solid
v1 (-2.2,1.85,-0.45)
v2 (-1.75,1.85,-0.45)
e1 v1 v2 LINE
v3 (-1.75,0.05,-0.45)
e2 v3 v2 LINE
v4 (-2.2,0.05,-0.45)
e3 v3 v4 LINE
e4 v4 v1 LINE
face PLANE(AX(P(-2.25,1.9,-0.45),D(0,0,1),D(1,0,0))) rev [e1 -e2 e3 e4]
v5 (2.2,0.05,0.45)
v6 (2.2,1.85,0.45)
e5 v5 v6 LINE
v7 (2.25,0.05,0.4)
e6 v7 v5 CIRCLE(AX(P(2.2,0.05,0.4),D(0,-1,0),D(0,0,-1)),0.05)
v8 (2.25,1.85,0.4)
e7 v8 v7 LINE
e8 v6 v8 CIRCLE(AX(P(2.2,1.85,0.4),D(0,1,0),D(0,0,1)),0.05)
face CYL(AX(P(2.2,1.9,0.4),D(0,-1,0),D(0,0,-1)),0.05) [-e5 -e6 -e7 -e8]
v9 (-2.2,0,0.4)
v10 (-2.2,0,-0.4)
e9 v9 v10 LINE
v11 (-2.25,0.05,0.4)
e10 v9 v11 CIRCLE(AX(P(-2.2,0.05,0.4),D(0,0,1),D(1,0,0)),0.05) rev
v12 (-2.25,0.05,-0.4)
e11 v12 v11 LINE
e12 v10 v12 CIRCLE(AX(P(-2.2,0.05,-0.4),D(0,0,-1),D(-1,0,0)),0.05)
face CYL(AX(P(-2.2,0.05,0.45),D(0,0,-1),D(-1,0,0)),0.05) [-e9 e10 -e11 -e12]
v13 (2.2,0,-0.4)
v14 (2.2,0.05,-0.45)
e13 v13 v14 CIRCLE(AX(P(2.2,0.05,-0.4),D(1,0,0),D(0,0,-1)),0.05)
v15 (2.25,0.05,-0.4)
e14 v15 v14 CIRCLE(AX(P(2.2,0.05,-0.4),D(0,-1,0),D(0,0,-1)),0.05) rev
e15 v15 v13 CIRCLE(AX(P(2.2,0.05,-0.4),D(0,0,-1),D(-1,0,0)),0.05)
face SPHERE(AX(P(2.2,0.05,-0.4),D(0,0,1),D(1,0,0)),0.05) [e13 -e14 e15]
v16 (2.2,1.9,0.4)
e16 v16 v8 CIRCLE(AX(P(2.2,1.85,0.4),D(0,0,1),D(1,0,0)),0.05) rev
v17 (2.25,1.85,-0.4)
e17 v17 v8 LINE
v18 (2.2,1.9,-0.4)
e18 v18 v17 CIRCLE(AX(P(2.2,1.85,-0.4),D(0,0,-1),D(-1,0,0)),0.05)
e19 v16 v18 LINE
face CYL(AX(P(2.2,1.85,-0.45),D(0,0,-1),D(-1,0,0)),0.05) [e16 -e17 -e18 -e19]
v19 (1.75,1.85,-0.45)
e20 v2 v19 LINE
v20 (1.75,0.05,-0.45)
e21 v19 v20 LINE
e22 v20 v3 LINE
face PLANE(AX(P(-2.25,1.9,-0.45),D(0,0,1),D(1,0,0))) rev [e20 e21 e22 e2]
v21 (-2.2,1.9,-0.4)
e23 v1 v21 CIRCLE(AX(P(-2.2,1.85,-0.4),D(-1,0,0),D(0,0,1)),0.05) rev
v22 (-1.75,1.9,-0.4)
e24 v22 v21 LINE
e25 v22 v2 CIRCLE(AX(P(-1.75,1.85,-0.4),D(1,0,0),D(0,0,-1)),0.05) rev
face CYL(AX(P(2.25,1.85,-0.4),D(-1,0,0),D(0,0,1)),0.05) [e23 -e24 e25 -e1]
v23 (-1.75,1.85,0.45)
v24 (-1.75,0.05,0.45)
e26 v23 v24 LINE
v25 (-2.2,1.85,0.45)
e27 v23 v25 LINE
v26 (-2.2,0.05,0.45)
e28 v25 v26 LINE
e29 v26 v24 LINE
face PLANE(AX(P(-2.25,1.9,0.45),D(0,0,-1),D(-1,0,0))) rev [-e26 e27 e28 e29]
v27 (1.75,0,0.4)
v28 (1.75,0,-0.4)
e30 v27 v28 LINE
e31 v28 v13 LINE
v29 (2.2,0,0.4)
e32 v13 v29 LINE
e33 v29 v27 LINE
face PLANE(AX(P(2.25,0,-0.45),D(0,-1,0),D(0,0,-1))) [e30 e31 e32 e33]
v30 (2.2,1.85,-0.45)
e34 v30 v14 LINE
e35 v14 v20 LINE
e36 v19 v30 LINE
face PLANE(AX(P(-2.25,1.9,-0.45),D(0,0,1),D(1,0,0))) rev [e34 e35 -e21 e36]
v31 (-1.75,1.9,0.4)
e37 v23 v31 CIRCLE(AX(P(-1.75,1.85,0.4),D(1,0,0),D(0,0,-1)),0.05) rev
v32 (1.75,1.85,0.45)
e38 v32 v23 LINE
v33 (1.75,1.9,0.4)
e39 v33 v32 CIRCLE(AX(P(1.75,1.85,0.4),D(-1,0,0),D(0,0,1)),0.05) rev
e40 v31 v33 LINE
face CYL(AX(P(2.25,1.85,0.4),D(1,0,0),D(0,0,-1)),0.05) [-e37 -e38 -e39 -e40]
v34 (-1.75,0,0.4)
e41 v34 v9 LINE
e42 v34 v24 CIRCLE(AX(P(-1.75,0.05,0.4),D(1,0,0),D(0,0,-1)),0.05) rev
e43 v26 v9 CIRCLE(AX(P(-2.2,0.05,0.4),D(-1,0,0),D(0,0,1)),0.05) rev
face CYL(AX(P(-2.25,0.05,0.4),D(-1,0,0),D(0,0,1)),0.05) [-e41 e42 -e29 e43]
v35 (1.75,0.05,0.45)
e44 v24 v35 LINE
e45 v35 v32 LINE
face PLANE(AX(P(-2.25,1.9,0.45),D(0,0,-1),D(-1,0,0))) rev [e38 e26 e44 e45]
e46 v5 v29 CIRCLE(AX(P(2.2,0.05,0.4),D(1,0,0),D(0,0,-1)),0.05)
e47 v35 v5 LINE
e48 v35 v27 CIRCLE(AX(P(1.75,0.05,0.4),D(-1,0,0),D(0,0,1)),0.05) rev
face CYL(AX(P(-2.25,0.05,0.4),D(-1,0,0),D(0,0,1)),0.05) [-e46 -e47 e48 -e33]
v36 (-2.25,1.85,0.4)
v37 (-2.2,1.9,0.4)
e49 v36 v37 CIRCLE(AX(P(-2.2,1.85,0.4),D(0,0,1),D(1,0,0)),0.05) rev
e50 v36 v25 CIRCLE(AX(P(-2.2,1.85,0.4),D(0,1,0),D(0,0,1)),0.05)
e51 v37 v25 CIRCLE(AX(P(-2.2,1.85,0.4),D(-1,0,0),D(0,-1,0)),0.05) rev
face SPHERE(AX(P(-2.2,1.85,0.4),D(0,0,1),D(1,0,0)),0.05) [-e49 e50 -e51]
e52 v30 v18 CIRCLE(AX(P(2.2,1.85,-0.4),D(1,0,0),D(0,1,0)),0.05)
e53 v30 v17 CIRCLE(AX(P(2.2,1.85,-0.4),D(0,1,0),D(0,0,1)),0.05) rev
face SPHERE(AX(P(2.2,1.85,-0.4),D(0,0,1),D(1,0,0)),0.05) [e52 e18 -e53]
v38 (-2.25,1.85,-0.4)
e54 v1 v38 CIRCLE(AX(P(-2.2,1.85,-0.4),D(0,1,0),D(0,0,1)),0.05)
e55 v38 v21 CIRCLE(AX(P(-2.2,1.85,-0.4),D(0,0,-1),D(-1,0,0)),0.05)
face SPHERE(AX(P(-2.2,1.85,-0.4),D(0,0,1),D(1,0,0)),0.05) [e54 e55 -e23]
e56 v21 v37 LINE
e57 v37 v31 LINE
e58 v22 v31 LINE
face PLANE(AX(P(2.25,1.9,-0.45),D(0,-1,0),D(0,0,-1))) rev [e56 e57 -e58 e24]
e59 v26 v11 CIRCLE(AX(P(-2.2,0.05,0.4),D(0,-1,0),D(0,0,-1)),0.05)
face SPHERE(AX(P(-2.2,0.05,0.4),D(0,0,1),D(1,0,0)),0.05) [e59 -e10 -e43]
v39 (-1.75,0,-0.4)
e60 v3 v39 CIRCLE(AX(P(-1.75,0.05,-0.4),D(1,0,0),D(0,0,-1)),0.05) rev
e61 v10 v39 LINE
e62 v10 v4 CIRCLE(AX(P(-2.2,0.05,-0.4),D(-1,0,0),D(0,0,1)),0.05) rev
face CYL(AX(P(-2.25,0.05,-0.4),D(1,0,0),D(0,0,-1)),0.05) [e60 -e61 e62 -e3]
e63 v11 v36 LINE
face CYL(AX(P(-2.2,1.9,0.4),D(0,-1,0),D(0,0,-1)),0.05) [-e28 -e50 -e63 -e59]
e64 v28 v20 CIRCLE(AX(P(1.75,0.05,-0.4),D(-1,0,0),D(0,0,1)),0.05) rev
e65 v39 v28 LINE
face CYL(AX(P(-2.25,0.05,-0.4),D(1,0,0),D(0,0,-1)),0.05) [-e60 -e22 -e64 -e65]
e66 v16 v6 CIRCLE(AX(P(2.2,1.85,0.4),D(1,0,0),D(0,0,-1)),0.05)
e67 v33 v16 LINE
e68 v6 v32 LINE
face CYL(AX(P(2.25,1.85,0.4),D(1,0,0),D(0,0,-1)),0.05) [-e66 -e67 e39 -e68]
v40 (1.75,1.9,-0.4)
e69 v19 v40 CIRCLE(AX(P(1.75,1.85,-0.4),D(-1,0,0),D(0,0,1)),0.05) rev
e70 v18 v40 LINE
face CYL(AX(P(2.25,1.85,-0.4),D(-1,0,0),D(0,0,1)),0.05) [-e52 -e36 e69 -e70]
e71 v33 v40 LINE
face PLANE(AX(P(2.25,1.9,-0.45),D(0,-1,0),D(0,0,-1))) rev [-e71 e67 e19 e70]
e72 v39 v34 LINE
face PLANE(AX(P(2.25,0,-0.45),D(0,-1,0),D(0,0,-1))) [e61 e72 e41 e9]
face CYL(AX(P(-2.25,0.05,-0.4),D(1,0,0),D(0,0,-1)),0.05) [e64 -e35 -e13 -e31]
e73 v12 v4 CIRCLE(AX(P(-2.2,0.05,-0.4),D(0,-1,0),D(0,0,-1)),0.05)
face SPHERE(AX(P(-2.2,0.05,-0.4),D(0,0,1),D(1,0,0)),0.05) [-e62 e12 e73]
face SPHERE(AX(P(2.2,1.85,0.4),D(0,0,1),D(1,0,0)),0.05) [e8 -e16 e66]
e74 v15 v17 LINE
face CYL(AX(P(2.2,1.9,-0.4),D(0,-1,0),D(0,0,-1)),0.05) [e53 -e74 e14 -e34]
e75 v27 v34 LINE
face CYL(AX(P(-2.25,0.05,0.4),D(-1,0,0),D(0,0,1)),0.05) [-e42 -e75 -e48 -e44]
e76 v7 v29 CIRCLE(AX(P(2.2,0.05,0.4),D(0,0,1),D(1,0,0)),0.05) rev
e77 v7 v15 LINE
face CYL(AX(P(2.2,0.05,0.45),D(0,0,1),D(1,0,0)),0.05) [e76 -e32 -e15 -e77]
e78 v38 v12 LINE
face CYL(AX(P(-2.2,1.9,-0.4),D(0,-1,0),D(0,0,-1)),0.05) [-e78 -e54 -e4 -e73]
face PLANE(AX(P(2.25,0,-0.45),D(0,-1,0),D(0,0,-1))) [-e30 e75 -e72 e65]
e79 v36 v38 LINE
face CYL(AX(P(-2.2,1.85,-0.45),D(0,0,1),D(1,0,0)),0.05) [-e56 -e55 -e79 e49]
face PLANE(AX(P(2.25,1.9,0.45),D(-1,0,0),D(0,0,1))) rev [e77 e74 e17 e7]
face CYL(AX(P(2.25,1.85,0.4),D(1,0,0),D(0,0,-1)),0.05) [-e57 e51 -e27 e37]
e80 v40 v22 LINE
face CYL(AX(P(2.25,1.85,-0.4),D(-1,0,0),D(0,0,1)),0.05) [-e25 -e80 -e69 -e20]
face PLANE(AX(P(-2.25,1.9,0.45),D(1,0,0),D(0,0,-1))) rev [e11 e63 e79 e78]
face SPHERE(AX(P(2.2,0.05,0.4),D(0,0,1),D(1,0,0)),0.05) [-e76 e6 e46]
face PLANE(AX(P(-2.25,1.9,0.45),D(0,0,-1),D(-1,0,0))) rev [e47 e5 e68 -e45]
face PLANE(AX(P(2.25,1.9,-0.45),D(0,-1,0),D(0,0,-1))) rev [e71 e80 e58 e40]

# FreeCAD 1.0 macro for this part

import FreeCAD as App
import Part
import Sketcher
from FreeCAD import Vector

doc = App.newDocument("Part")
body = doc.addObject("PartDesign::Body", "Body")

# Sketch on XZ plane
sketch1 = body.newObject("Sketcher::SketchObject", "Sketch")
sketch1.AttachmentSupport = (doc.getObject("XZ_Plane"), [""])
sketch1.MapMode = "FlatFace"
sketch1.addGeometry(Part.LineSegment(Vector(-2.25, -0.45, 0), Vector(-2.25, 0.45, 0)), False)
sketch1.addGeometry(Part.LineSegment(Vector(-2.25, 0.45, 0), Vector(2.25, 0.45, 0)), False)
sketch1.addGeometry(Part.LineSegment(Vector(2.25, 0.45, 0), Vector(2.25, -0.45, 0)), False)
sketch1.addGeometry(Part.LineSegment(Vector(2.25, -0.45, 0), Vector(-2.25, -0.45, 0)), False)
sketch1.addConstraint(Sketcher.Constraint("Coincident", 0, 2, 1, 1))
sketch1.addConstraint(Sketcher.Constraint("Coincident", 1, 2, 2, 1))
sketch1.addConstraint(Sketcher.Constraint("Coincident", 2, 2, 3, 1))
sketch1.addConstraint(Sketcher.Constraint("Coincident", 3, 2, 0, 1))
sketch1.addConstraint(Sketcher.Constraint("Vertical", 0))
sketch1.addConstraint(Sketcher.Constraint("Horizontal", 1))
sketch1.addConstraint(Sketcher.Constraint("Vertical", 2))
sketch1.addConstraint(Sketcher.Constraint("Horizontal", 3))
sketch1.addConstraint(Sketcher.Constraint("Symmetric", 0, 2, 2, 2, -1, 1))
sketch1.addConstraint(Sketcher.Constraint("DistanceX", 1, 1, 1, 2, 4.5))
sketch1.addConstraint(Sketcher.Constraint("DistanceY", 0, 1, 0, 2, 0.9))
pad1 = body.newObject("PartDesign::Pad", "Pad")
pad1.Profile = sketch1
pad1.Length = 1.9
pad1.Reversed = True
doc.recompute()

fillet = body.newObject("PartDesign::Fillet", "Fillet")
fillet.Base = (pad1, ["Edge1"])
fillet.UseAllEdges = True
fillet.Radius = 0.05

doc.recompute()
